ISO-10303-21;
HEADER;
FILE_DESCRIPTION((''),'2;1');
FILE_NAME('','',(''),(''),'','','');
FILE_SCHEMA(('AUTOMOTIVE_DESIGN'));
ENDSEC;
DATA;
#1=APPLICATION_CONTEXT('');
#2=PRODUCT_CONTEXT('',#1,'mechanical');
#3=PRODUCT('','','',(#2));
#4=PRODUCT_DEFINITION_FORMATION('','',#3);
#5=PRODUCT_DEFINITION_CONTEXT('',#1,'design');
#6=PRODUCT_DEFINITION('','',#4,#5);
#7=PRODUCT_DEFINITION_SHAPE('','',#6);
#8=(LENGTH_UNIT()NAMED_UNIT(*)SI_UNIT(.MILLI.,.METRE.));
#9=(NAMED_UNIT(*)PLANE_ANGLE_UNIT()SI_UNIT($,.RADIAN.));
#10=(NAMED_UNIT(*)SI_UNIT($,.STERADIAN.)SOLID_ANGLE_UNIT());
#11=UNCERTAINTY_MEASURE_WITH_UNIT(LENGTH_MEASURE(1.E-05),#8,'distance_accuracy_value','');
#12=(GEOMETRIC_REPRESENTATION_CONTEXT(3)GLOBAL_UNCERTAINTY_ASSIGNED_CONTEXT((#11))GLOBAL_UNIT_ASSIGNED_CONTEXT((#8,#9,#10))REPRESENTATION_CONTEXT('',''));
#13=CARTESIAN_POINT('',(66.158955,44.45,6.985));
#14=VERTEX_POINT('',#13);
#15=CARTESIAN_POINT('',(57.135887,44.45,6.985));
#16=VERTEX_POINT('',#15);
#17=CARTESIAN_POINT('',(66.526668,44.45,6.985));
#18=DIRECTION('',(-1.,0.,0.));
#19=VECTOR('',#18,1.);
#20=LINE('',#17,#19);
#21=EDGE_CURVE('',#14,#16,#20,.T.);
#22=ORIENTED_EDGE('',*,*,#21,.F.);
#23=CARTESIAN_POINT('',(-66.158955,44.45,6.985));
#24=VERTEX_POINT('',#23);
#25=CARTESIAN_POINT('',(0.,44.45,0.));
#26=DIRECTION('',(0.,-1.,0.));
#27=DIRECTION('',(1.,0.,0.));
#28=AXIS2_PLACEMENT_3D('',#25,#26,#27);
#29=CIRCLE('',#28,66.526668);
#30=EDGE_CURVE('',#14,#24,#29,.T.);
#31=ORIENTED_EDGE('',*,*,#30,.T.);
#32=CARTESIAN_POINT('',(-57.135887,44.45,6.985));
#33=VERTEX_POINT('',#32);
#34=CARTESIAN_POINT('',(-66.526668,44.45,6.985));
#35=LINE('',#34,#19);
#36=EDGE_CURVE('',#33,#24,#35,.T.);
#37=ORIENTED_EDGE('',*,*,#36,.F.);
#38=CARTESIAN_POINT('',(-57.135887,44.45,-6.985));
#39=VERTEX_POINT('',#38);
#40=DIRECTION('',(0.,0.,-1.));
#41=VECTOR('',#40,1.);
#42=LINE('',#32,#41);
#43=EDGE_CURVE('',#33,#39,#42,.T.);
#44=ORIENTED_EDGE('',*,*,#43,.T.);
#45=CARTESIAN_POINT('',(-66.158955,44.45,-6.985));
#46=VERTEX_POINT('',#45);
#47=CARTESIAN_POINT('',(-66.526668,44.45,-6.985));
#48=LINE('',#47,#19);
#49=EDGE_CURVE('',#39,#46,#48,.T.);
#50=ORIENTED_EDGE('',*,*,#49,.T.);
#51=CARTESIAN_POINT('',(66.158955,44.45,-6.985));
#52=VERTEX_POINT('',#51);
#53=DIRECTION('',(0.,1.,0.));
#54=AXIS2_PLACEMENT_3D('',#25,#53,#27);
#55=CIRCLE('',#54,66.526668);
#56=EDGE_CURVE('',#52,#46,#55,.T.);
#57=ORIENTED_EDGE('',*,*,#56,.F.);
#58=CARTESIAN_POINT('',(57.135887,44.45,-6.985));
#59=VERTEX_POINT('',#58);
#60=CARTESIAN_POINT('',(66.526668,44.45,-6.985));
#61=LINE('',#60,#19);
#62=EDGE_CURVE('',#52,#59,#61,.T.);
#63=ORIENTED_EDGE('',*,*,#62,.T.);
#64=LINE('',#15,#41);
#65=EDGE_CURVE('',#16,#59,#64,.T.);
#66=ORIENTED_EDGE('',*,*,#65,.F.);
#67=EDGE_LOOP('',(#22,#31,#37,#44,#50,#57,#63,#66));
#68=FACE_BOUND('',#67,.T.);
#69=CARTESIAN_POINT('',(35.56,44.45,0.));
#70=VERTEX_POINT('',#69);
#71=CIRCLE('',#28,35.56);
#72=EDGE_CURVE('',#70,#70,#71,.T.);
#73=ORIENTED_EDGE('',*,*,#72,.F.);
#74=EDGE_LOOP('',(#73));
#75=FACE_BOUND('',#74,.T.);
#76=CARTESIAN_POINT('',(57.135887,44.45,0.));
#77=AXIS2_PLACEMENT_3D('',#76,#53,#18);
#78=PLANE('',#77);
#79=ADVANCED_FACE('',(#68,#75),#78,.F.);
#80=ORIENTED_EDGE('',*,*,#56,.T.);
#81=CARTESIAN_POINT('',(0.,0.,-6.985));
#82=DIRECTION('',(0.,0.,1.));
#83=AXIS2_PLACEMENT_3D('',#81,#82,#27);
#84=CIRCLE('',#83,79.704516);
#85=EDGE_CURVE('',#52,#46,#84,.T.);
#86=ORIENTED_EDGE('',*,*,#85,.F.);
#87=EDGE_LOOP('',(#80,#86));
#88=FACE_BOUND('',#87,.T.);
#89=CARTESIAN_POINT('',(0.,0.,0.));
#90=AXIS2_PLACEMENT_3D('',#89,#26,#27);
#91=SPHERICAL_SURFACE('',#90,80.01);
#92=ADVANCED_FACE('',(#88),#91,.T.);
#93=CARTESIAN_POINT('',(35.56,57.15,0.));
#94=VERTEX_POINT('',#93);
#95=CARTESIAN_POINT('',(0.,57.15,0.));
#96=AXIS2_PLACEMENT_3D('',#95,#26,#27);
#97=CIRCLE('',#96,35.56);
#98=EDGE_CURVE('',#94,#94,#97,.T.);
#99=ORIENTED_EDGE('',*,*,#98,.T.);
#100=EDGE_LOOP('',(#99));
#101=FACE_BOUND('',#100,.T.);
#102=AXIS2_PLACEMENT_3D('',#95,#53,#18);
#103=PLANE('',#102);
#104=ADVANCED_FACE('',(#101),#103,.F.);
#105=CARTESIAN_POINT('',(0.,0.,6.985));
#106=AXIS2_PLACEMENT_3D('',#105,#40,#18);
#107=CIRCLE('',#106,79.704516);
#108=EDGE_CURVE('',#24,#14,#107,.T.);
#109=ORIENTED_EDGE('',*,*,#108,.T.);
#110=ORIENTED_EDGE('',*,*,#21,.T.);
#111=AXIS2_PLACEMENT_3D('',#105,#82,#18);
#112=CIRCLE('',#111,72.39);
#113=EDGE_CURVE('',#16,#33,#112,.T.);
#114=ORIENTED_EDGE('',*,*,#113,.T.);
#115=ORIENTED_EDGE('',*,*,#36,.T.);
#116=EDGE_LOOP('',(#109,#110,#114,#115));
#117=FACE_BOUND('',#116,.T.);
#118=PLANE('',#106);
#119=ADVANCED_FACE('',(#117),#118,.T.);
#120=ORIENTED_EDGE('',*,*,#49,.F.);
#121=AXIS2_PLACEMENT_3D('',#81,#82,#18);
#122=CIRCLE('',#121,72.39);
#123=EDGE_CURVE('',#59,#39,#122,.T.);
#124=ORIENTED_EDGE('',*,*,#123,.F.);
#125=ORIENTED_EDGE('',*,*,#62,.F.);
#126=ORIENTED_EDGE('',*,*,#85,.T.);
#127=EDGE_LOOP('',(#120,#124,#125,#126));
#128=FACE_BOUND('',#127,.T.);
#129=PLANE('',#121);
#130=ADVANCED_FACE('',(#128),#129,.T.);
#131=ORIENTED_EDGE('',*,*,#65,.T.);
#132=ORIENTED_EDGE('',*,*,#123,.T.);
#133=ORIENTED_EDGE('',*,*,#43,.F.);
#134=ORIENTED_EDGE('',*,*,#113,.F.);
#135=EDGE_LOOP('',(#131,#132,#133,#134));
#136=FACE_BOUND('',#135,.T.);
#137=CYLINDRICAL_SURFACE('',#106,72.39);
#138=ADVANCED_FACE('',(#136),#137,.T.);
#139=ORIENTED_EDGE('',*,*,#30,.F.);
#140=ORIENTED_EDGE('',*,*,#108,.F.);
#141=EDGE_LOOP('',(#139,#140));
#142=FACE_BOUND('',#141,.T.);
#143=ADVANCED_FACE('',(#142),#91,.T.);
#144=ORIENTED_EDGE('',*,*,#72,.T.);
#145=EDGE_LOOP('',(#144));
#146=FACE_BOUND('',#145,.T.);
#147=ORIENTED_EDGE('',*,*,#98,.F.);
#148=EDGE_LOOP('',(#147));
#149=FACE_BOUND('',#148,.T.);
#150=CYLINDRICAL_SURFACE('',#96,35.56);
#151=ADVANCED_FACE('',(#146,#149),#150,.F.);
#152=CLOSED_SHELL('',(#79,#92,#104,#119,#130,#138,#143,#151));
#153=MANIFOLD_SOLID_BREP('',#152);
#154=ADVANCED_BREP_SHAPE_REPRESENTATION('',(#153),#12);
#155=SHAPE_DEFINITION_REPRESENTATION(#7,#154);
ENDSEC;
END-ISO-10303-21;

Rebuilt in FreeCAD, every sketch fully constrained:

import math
import FreeCAD as App
import Part
import Sketcher
from FreeCAD import Vector
Q = App.Units.Quantity

doc = App.newDocument("Part")
params = doc.addObject("Spreadsheet::Sheet", "Params")
for row, (alias, value) in enumerate([
    ("sketch1_radius", "3.15 in"),
    ("sketch1_width", "1.4 in"),
    ("sketch1_height", "0.5 in"),
    ("sketch1_height2", "0.9 in"),
    ("revolution_angle", "180 deg"),
    ("sketch2_radius", "2.85 in"),
    ("sketch2_radius2", "3.15 in"),
    ("pocket1_length", "0.275 in"),
], start=1):
    params.set(f"A{row}", alias)
    params.set(f"B{row}", "=" + value)
    params.setAlias(f"B{row}", alias)

body = doc.addObject("PartDesign::Body", "Body")

# Sketch on XY plane
sketch1 = body.newObject("Sketcher::SketchObject", "Sketch")
sketch1.AttachmentSupport = (doc.getObject("XY_Plane"), [""])
sketch1.MapMode = "FlatFace"
sketch1.addGeometry(Part.LineSegment(Vector(-36, 44, 0), Vector(-36, 57, 0)), False)
sketch1.addGeometry(Part.LineSegment(Vector(-36, 57, 0), Vector(0, 57, 0)), False)
sketch1.addGeometry(Part.LineSegment(Vector(0, 57, 0), Vector(0, 80, 0)), False)
sketch1.addGeometry(Part.ArcOfCircle(Part.Circle(Vector(0, 0, 0), Vector(0, 0, 1), 80), math.radians(90), math.radians(146)), False)
sketch1.addGeometry(Part.LineSegment(Vector(-67, 44, 0), Vector(-36, 44, 0)), False)
sketch1.addConstraint(Sketcher.Constraint("Coincident", 0, 2, 1, 1))
sketch1.addConstraint(Sketcher.Constraint("Coincident", 1, 2, 2, 1))
sketch1.addConstraint(Sketcher.Constraint("Coincident", 2, 2, 3, 1))
sketch1.addConstraint(Sketcher.Constraint("Coincident", 3, 2, 4, 1))
sketch1.addConstraint(Sketcher.Constraint("Coincident", 4, 2, 0, 1))
sketch1.addConstraint(Sketcher.Constraint("Vertical", 0))
sketch1.addConstraint(Sketcher.Constraint("Horizontal", 1))
sketch1.addConstraint(Sketcher.Constraint("Vertical", 2))
sketch1.addConstraint(Sketcher.Constraint("Horizontal", 4))
sketch1.addConstraint(Sketcher.Constraint("Coincident", 3, 3, -1, 1))
sketch1.addConstraint(Sketcher.Constraint("PointOnObject", 1, 2, -2))
sketch1.addConstraint(Sketcher.Constraint("Radius", 3, Q("3.15 in")))
sketch1.addConstraint(Sketcher.Constraint("DistanceX", 1, 1, 1, 2, Q("1.4 in")))
sketch1.addConstraint(Sketcher.Constraint("DistanceY", 0, 1, 0, 2, Q("0.5 in")))
sketch1.addConstraint(Sketcher.Constraint("DistanceY", 2, 1, 2, 2, Q("0.9 in")))
sketch1.setExpression("Constraints[11]", "Params.sketch1_radius")
sketch1.setExpression("Constraints[12]", "Params.sketch1_width")
sketch1.setExpression("Constraints[13]", "Params.sketch1_height")
sketch1.setExpression("Constraints[14]", "Params.sketch1_height2")
revolution = body.newObject("PartDesign::Revolution", "Revolution")
revolution.Profile = sketch1
revolution.ReferenceAxis = (sketch1, ["V_Axis"])
revolution.setExpression("Angle", "Params.revolution_angle")

# Sketch on XY plane
sketch2 = body.newObject("Sketcher::SketchObject", "Sketch001")
sketch2.AttachmentSupport = (doc.getObject("XY_Plane"), [""])
sketch2.MapMode = "FlatFace"
sketch2.addGeometry(Part.LineSegment(Vector(67, 44, 0), Vector(57, 44, 0)), False)
sketch2.addGeometry(Part.ArcOfCircle(Part.Circle(Vector(0, 0, 0), Vector(0, 0, 1), 72), math.radians(38), math.radians(142)), False)
sketch2.addGeometry(Part.LineSegment(Vector(-57, 44, 0), Vector(-67, 44, 0)), False)
sketch2.addGeometry(Part.ArcOfCircle(Part.Circle(Vector(0, 0, 0), Vector(0, 0, 1), 80), math.radians(34), math.radians(146)), False)
sketch2.addConstraint(Sketcher.Constraint("Coincident", 0, 2, 1, 1))
sketch2.addConstraint(Sketcher.Constraint("Coincident", 1, 2, 2, 1))
sketch2.addConstraint(Sketcher.Constraint("Coincident", 2, 2, 3, 2))
sketch2.addConstraint(Sketcher.Constraint("Coincident", 3, 1, 0, 1))
sketch2.addConstraint(Sketcher.Constraint("Horizontal", 0))
sketch2.addConstraint(Sketcher.Constraint("Horizontal", 2))
sketch2.addConstraint(Sketcher.Constraint("Coincident", 1, 3, -1, 1))
sketch2.addConstraint(Sketcher.Constraint("Coincident", 3, 3, -1, 1))
sketch2.addConstraint(Sketcher.Constraint("Horizontal", 0, 2, 1, 2))
sketch2.addConstraint(Sketcher.Constraint("Radius", 1, Q("2.85 in")))
sketch2.addConstraint(Sketcher.Constraint("Radius", 3, Q("3.15 in")))
sketch2.addConstraint(Sketcher.Constraint("DistanceY", -1, 1, 0, 2, Q("1.75 in")))
sketch2.setExpression("Constraints[9]", "Params.sketch2_radius")
sketch2.setExpression("Constraints[10]", "Params.sketch2_radius2")
pocket1 = body.newObject("PartDesign::Pocket", "Pocket")
pocket1.Profile = sketch2
pocket1.setExpression("Length", "Params.pocket1_length")
pocket1.Reversed = True
doc.recompute()

mirrored = body.newObject("PartDesign::Mirrored", "Mirrored")
mirrored.Originals = [revolution, pocket1]
mirrored.MirrorPlane = (doc.getObject("XY_Plane"), [""])
body.Tip = mirrored

doc.recompute()
